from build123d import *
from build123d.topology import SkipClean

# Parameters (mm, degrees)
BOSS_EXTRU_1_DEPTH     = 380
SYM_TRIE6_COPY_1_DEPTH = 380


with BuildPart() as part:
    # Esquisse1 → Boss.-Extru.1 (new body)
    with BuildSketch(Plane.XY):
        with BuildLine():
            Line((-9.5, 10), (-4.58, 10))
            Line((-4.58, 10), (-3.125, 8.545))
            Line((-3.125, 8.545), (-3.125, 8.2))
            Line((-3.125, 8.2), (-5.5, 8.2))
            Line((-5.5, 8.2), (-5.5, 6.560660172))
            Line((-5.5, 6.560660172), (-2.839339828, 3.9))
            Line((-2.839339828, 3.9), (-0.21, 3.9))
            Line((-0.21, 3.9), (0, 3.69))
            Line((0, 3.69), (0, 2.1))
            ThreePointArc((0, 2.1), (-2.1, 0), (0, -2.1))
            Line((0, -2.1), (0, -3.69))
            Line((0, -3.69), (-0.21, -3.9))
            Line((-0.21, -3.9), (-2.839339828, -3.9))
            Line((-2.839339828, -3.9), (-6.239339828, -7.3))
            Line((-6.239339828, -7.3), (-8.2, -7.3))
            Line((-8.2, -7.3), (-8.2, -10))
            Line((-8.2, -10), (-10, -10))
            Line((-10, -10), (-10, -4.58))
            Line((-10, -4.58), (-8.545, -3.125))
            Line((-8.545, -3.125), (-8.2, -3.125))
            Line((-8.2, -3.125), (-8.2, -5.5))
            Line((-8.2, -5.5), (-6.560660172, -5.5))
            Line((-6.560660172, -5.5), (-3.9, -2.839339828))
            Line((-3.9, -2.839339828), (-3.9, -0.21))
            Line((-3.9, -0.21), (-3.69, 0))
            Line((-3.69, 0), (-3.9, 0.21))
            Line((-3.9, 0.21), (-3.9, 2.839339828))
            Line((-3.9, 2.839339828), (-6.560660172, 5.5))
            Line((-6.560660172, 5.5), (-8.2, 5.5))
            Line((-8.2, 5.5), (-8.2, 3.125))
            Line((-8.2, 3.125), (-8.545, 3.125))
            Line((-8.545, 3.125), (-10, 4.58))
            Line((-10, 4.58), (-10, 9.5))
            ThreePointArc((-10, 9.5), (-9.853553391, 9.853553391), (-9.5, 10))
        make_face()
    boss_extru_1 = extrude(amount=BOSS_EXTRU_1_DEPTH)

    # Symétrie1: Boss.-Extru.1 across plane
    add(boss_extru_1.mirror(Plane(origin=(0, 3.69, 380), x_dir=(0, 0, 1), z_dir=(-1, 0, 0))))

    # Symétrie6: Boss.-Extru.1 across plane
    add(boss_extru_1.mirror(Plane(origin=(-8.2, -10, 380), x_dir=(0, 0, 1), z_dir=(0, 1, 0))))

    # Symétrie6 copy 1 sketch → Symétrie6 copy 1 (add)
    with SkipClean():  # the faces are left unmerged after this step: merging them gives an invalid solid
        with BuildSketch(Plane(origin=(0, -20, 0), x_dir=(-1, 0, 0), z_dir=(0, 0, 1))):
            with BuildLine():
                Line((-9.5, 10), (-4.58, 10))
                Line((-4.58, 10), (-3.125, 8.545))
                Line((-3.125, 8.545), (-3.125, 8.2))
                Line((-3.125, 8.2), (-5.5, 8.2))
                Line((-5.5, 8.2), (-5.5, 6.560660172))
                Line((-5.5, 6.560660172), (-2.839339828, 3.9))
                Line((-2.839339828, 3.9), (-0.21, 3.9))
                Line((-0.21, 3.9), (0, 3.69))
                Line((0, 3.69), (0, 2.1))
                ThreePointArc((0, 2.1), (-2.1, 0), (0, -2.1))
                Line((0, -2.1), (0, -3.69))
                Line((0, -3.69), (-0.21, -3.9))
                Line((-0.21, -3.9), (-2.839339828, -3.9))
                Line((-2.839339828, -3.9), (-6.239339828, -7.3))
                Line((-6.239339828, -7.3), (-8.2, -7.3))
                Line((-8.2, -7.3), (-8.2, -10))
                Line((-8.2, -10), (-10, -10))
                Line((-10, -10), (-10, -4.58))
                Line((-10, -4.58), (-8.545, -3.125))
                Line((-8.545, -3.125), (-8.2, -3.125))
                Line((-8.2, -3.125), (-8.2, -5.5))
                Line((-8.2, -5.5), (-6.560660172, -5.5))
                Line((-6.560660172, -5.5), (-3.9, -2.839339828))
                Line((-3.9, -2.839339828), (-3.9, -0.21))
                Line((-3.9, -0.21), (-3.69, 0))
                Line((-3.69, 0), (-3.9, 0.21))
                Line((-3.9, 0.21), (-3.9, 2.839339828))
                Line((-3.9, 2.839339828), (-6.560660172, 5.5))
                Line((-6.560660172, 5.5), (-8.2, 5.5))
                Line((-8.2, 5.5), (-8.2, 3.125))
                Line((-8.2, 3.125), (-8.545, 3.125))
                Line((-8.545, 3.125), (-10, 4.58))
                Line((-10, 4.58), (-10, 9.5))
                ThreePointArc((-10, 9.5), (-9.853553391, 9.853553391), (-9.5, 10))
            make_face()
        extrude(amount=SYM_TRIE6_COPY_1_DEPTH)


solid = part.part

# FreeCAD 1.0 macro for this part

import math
import FreeCAD as App
import Part
import Sketcher

V = App.Vector

doc = App.newDocument("Part")
body = doc.addObject("PartDesign::Body", "Body")

# Sketch on XY plane
sketch1 = body.newObject("Sketcher::SketchObject", "Sketch")
sketch1.AttachmentSupport = (doc.getObject("XY_Plane"), [""])
sketch1.MapMode = "FlatFace"
sketch1.addGeometry([
    Part.LineSegment(V(-4.58, 10, 0), V(-9.5, 10, 0)),  # 0
    Part.ArcOfCircle(Part.Circle(V(-9.5, 9.5, 0), V(0, 0, 1), 0.5), math.radians(90), math.radians(180)),  # 1
    Part.LineSegment(V(-10, 9.5, 0), V(-10, 4.58, 0)),  # 2
    Part.LineSegment(V(-10, 4.58, 0), V(-8.54, 3.12, 0)),  # 3
    Part.LineSegment(V(-8.54, 3.12, 0), V(-8.2, 3.12, 0)),  # 4
    Part.LineSegment(V(-8.2, 3.12, 0), V(-8.2, 5.5, 0)),  # 5
    Part.LineSegment(V(-8.2, 5.5, 0), V(-6.56, 5.5, 0)),  # 6
    Part.LineSegment(V(-6.56, 5.5, 0), V(-3.9, 2.84, 0)),  # 7
    Part.LineSegment(V(-3.9, 2.84, 0), V(-3.9, 0.21, 0)),  # 8
    Part.LineSegment(V(-3.9, 0.21, 0), V(-3.69, 0, 0)),  # 9
    Part.LineSegment(V(-3.69, 0, 0), V(-3.9, -0.21, 0)),  # 10
    Part.LineSegment(V(-3.9, -0.21, 0), V(-3.9, -2.84, 0)),  # 11
    Part.LineSegment(V(-3.9, -2.84, 0), V(-6.56, -5.5, 0)),  # 12
    Part.LineSegment(V(-6.56, -5.5, 0), V(-8.2, -5.5, 0)),  # 13
    Part.LineSegment(V(-8.2, -5.5, 0), V(-8.2, -3.12, 0)),  # 14
    Part.LineSegment(V(-8.2, -3.12, 0), V(-8.54, -3.12, 0)),  # 15
    Part.LineSegment(V(-8.54, -3.12, 0), V(-10, -4.58, 0)),  # 16
    Part.LineSegment(V(-10, -4.58, 0), V(-10, -10, 0)),  # 17
    Part.LineSegment(V(-10, -10, 0), V(-8.2, -10, 0)),  # 18
    Part.LineSegment(V(-8.2, -10, 0), V(-8.2, -7.3, 0)),  # 19
    Part.LineSegment(V(-8.2, -7.3, 0), V(-6.24, -7.3, 0)),  # 20
    Part.LineSegment(V(-6.24, -7.3, 0), V(-2.84, -3.9, 0)),  # 21
    Part.LineSegment(V(-2.84, -3.9, 0), V(-0.21, -3.9, 0)),  # 22
    Part.LineSegment(V(-0.21, -3.9, 0), V(0, -3.69, 0)),  # 23
    Part.LineSegment(V(0, -3.69, 0), V(0, -2.1, 0)),  # 24
    Part.ArcOfCircle(Part.Circle(V(0, 0, 0), V(0, 0, 1), 2.1), math.radians(90), math.radians(270)),  # 25
    Part.LineSegment(V(0, 2.1, 0), V(0, 3.69, 0)),  # 26
    Part.LineSegment(V(0, 3.69, 0), V(-0.21, 3.9, 0)),  # 27
    Part.LineSegment(V(-0.21, 3.9, 0), V(-2.84, 3.9, 0)),  # 28
    Part.LineSegment(V(-2.84, 3.9, 0), V(-5.5, 6.56, 0)),  # 29
    Part.LineSegment(V(-5.5, 6.56, 0), V(-5.5, 8.2, 0)),  # 30
    Part.LineSegment(V(-5.5, 8.2, 0), V(-3.12, 8.2, 0)),  # 31
    Part.LineSegment(V(-3.12, 8.2, 0), V(-3.12, 8.54, 0)),  # 32
    Part.LineSegment(V(-3.12, 8.54, 0), V(-4.58, 10, 0)),  # 33
], False)
sketch1.addConstraint([
    Sketcher.Constraint("Tangent", 0, 2, 1, 1),
    Sketcher.Constraint("Tangent", 1, 2, 2, 1),
    Sketcher.Constraint("Coincident", 2, 2, 3, 1),
    Sketcher.Constraint("Coincident", 3, 2, 4, 1),
    Sketcher.Constraint("Coincident", 4, 2, 5, 1),
    Sketcher.Constraint("Coincident", 5, 2, 6, 1),
    Sketcher.Constraint("Coincident", 6, 2, 7, 1),
    Sketcher.Constraint("Coincident", 7, 2, 8, 1),
    Sketcher.Constraint("Coincident", 8, 2, 9, 1),
    Sketcher.Constraint("Coincident", 9, 2, 10, 1),
    Sketcher.Constraint("Coincident", 10, 2, 11, 1),
    Sketcher.Constraint("Coincident", 11, 2, 12, 1),
    Sketcher.Constraint("Coincident", 12, 2, 13, 1),
    Sketcher.Constraint("Coincident", 13, 2, 14, 1),
    Sketcher.Constraint("Coincident", 14, 2, 15, 1),
    Sketcher.Constraint("Coincident", 15, 2, 16, 1),
    Sketcher.Constraint("Coincident", 16, 2, 17, 1),
    Sketcher.Constraint("Coincident", 17, 2, 18, 1),
    Sketcher.Constraint("Coincident", 18, 2, 19, 1),
    Sketcher.Constraint("Coincident", 19, 2, 20, 1),
    Sketcher.Constraint("Coincident", 20, 2, 21, 1),
    Sketcher.Constraint("Coincident", 21, 2, 22, 1),
    Sketcher.Constraint("Coincident", 22, 2, 23, 1),
    Sketcher.Constraint("Coincident", 23, 2, 24, 1),
    Sketcher.Constraint("Coincident", 24, 2, 25, 2),
    Sketcher.Constraint("Coincident", 25, 1, 26, 1),
    Sketcher.Constraint("Coincident", 26, 2, 27, 1),
    Sketcher.Constraint("Coincident", 27, 2, 28, 1),
    Sketcher.Constraint("Coincident", 28, 2, 29, 1),
    Sketcher.Constraint("Coincident", 29, 2, 30, 1),
    Sketcher.Constraint("Coincident", 30, 2, 31, 1),
    Sketcher.Constraint("Coincident", 31, 2, 32, 1),
    Sketcher.Constraint("Coincident", 32, 2, 33, 1),
    Sketcher.Constraint("Coincident", 33, 2, 0, 1),
    Sketcher.Constraint("Horizontal", 0),
    Sketcher.Constraint("Vertical", 2),
    Sketcher.Constraint("Horizontal", 4),
    Sketcher.Constraint("Vertical", 5),
    Sketcher.Constraint("Horizontal", 6),
    Sketcher.Constraint("Vertical", 8),
    Sketcher.Constraint("Vertical", 11),
    Sketcher.Constraint("Horizontal", 13),
    Sketcher.Constraint("Vertical", 14),
    Sketcher.Constraint("Horizontal", 15),
    Sketcher.Constraint("Vertical", 17),
    Sketcher.Constraint("Horizontal", 18),
    Sketcher.Constraint("Vertical", 19),
    Sketcher.Constraint("Horizontal", 20),
    Sketcher.Constraint("Horizontal", 22),
    Sketcher.Constraint("Vertical", 24),
    Sketcher.Constraint("Vertical", 26),
    Sketcher.Constraint("Horizontal", 28),
    Sketcher.Constraint("Vertical", 30),
    Sketcher.Constraint("Horizontal", 31),
    Sketcher.Constraint("Vertical", 32),
    Sketcher.Constraint("Coincident", 25, 3, -1, 1),
    Sketcher.Constraint("Symmetric", 23, 2, 26, 2, -1, 1),
    Sketcher.Constraint("Symmetric", 8, 2, 10, 2, -1),
    Sketcher.Constraint("Symmetric", 6, 2, 12, 2, -1),
    Sketcher.Constraint("Symmetric", 4, 2, 14, 2, -1),
    Sketcher.Constraint("Symmetric", 2, 2, 16, 2, -1),
    Sketcher.Constraint("Symmetric", 22, 2, 27, 2, -1),
    Sketcher.Constraint("PointOnObject", 9, 2, -1),
    Sketcher.Constraint("PointOnObject", 23, 2, -2),
    Sketcher.Constraint("Parallel", 3, 7),
    Sketcher.Constraint("Parallel", 7, 9),
    Sketcher.Constraint("Perpendicular", 9, 10),
    Sketcher.Constraint("Parallel", 10, 12),
    Sketcher.Constraint("Parallel", 12, 16),
    Sketcher.Constraint("Parallel", 16, 21),
    Sketcher.Constraint("Parallel", 21, 23),
    Sketcher.Constraint("Parallel", 27, 29),
    Sketcher.Constraint("Parallel", 29, 33),
    Sketcher.Constraint("Vertical", 14, 2, 18, 2),
    Sketcher.Constraint("Vertical", 21, 2, 28, 2),
    Sketcher.Constraint("Equal", 0, 2),
    Sketcher.Constraint("Equal", 31, 5),
    Sketcher.Constraint("Equal", 28, 8),
    Sketcher.Constraint("Equal", 13, 30),
    Sketcher.Constraint("Equal", 15, 32),
    Sketcher.Constraint("Equal", 10, 23),
    Sketcher.Constraint("Equal", 12, 29),
    Sketcher.Constraint("Equal", 16, 33),
    Sketcher.Constraint("Radius", 1, 0.5),
    Sketcher.Constraint("Radius", 25, 2.1),
    Sketcher.Constraint("DistanceX", 18, 1, 18, 2, 1.8),
    Sketcher.Constraint("DistanceY", 19, 1, 19, 2, 2.7),
    Sketcher.Constraint("DistanceY", -1, 1, 0, 2, 10.0),
    Sketcher.Constraint("DistanceY", 17, 2, -1, 1, 10.0),
    Sketcher.Constraint("DistanceY", 5, 2, 1, 3, 4.0),
    Sketcher.Constraint("DistanceX", 0, 2, 0, 1, 4.92),
    Sketcher.Constraint("DistanceY", 24, 1, 24, 2, 1.59),
    Sketcher.Constraint("DistanceX", 7, 2, -1, 1, 3.9),
    Sketcher.Constraint("DistanceX", 4, 1, 4, 2, 0.345),
    Sketcher.Constraint("DistanceX", 6, 1, 6, 2, 1.63934),
])
pad1 = body.newObject("PartDesign::Pad", "Pad")
pad1.Profile = sketch1
pad1.Length = 380
doc.recompute()

mirrored = body.newObject("PartDesign::Mirrored", "Mirrored")
mirrored.Originals = [pad1]
mirrored.MirrorPlane = (doc.getObject("YZ_Plane"), [""])
body.Tip = mirrored
doc.recompute()

datumplane = body.newObject("PartDesign::Plane", "DatumPlane")
datumplane.AttachmentSupport = (doc.getObject("XZ_Plane"), [""])
datumplane.MapMode = "FlatFace"
datumplane.AttachmentOffset = App.Placement(V(0, 0, 10), App.Rotation())
mirrored2 = body.newObject("PartDesign::Mirrored", "Mirrored001")
mirrored2.Originals = [pad1]
mirrored2.MirrorPlane = (datumplane, [""])
body.Tip = mirrored2

# Sketch on XY plane
sketch2 = body.newObject("Sketcher::SketchObject", "Sketch001")
sketch2.AttachmentSupport = (doc.getObject("XY_Plane"), [""])
sketch2.MapMode = "FlatFace"
sketch2.addGeometry([
    Part.LineSegment(V(4.58, -30, 0), V(9.5, -30, 0)),  # 0
    Part.ArcOfCircle(Part.Circle(V(9.5, -29.5, 0), V(0, 0, 1), 0.5), math.radians(-90), math.radians(0)),  # 1
    Part.LineSegment(V(10, -29.5, 0), V(10, -24.58, 0)),  # 2
    Part.LineSegment(V(10, -24.58, 0), V(8.54, -23.12, 0)),  # 3
    Part.LineSegment(V(8.54, -23.12, 0), V(8.2, -23.12, 0)),  # 4
    Part.LineSegment(V(8.2, -23.12, 0), V(8.2, -25.5, 0)),  # 5
    Part.LineSegment(V(8.2, -25.5, 0), V(6.56, -25.5, 0)),  # 6
    Part.LineSegment(V(6.56, -25.5, 0), V(3.9, -22.84, 0)),  # 7
    Part.LineSegment(V(3.9, -22.84, 0), V(3.9, -20.21, 0)),  # 8
    Part.LineSegment(V(3.9, -20.21, 0), V(3.69, -20, 0)),  # 9
    Part.LineSegment(V(3.69, -20, 0), V(3.9, -19.79, 0)),  # 10
    Part.LineSegment(V(3.9, -19.79, 0), V(3.9, -17.16, 0)),  # 11
    Part.LineSegment(V(3.9, -17.16, 0), V(6.56, -14.5, 0)),  # 12
    Part.LineSegment(V(6.56, -14.5, 0), V(8.2, -14.5, 0)),  # 13
    Part.LineSegment(V(8.2, -14.5, 0), V(8.2, -16.88, 0)),  # 14
    Part.LineSegment(V(8.2, -16.88, 0), V(8.54, -16.88, 0)),  # 15
    Part.LineSegment(V(8.54, -16.88, 0), V(10, -15.42, 0)),  # 16
    Part.LineSegment(V(10, -15.42, 0), V(10, -10, 0)),  # 17
    Part.LineSegment(V(10, -10, 0), V(8.2, -10, 0)),  # 18
    Part.LineSegment(V(8.2, -10, 0), V(8.2, -12.7, 0)),  # 19
    Part.LineSegment(V(8.2, -12.7, 0), V(6.24, -12.7, 0)),  # 20
    Part.LineSegment(V(6.24, -12.7, 0), V(2.84, -16.1, 0)),  # 21
    Part.LineSegment(V(2.84, -16.1, 0), V(0.21, -16.1, 0)),  # 22
    Part.LineSegment(V(0.21, -16.1, 0), V(0, -16.31, 0)),  # 23
    Part.LineSegment(V(0, -16.31, 0), V(0, -17.9, 0)),  # 24
    Part.ArcOfCircle(Part.Circle(V(0, -20, 0), V(0, 0, 1), 2.1), math.radians(-90), math.radians(90)),  # 25
    Part.LineSegment(V(0, -22.1, 0), V(0, -23.69, 0)),  # 26
    Part.LineSegment(V(0, -23.69, 0), V(0.21, -23.9, 0)),  # 27
    Part.LineSegment(V(0.21, -23.9, 0), V(2.84, -23.9, 0)),  # 28
    Part.LineSegment(V(2.84, -23.9, 0), V(5.5, -26.56, 0)),  # 29
    Part.LineSegment(V(5.5, -26.56, 0), V(5.5, -28.2, 0)),  # 30
    Part.LineSegment(V(5.5, -28.2, 0), V(3.12, -28.2, 0)),  # 31
    Part.LineSegment(V(3.12, -28.2, 0), V(3.12, -28.55, 0)),  # 32
    Part.LineSegment(V(3.12, -28.55, 0), V(4.58, -30, 0)),  # 33
], False)
sketch2.addConstraint([
    Sketcher.Constraint("Tangent", 0, 2, 1, 1),
    Sketcher.Constraint("Tangent", 1, 2, 2, 1),
    Sketcher.Constraint("Coincident", 2, 2, 3, 1),
    Sketcher.Constraint("Coincident", 3, 2, 4, 1),
    Sketcher.Constraint("Coincident", 4, 2, 5, 1),
    Sketcher.Constraint("Coincident", 5, 2, 6, 1),
    Sketcher.Constraint("Coincident", 6, 2, 7, 1),
    Sketcher.Constraint("Coincident", 7, 2, 8, 1),
    Sketcher.Constraint("Coincident", 8, 2, 9, 1),
    Sketcher.Constraint("Coincident", 9, 2, 10, 1),
    Sketcher.Constraint("Coincident", 10, 2, 11, 1),
    Sketcher.Constraint("Coincident", 11, 2, 12, 1),
    Sketcher.Constraint("Coincident", 12, 2, 13, 1),
    Sketcher.Constraint("Coincident", 13, 2, 14, 1),
    Sketcher.Constraint("Coincident", 14, 2, 15, 1),
    Sketcher.Constraint("Coincident", 15, 2, 16, 1),
    Sketcher.Constraint("Coincident", 16, 2, 17, 1),
    Sketcher.Constraint("Coincident", 17, 2, 18, 1),
    Sketcher.Constraint("Coincident", 18, 2, 19, 1),
    Sketcher.Constraint("Coincident", 19, 2, 20, 1),
    Sketcher.Constraint("Coincident", 20, 2, 21, 1),
    Sketcher.Constraint("Coincident", 21, 2, 22, 1),
    Sketcher.Constraint("Coincident", 22, 2, 23, 1),
    Sketcher.Constraint("Coincident", 23, 2, 24, 1),
    Sketcher.Constraint("Coincident", 24, 2, 25, 2),
    Sketcher.Constraint("Coincident", 25, 1, 26, 1),
    Sketcher.Constraint("Coincident", 26, 2, 27, 1),
    Sketcher.Constraint("Coincident", 27, 2, 28, 1),
    Sketcher.Constraint("Coincident", 28, 2, 29, 1),
    Sketcher.Constraint("Coincident", 29, 2, 30, 1),
    Sketcher.Constraint("Coincident", 30, 2, 31, 1),
    Sketcher.Constraint("Coincident", 31, 2, 32, 1),
    Sketcher.Constraint("Coincident", 32, 2, 33, 1),
    Sketcher.Constraint("Coincident", 33, 2, 0, 1),
    Sketcher.Constraint("Horizontal", 0),
    Sketcher.Constraint("Vertical", 2),
    Sketcher.Constraint("Horizontal", 4),
    Sketcher.Constraint("Vertical", 5),
    Sketcher.Constraint("Horizontal", 6),
    Sketcher.Constraint("Vertical", 8),
    Sketcher.Constraint("Vertical", 11),
    Sketcher.Constraint("Horizontal", 13),
    Sketcher.Constraint("Vertical", 14),
    Sketcher.Constraint("Horizontal", 15),
    Sketcher.Constraint("Vertical", 17),
    Sketcher.Constraint("Horizontal", 18),
    Sketcher.Constraint("Vertical", 19),
    Sketcher.Constraint("Horizontal", 20),
    Sketcher.Constraint("Horizontal", 22),
    Sketcher.Constraint("Vertical", 24),
    Sketcher.Constraint("Vertical", 26),
    Sketcher.Constraint("Horizontal", 28),
    Sketcher.Constraint("Vertical", 30),
    Sketcher.Constraint("Horizontal", 31),
    Sketcher.Constraint("Vertical", 32),
    Sketcher.Constraint("PointOnObject", 25, 3, -2),
    Sketcher.Constraint("PointOnObject", 23, 2, -2),
    Sketcher.Constraint("PointOnObject", 25, 1, -2),
    Sketcher.Constraint("Parallel", 3, 7),
    Sketcher.Constraint("Parallel", 7, 9),
    Sketcher.Constraint("Perpendicular", 9, 10),
    Sketcher.Constraint("Parallel", 10, 12),
    Sketcher.Constraint("Parallel", 12, 16),
    Sketcher.Constraint("Parallel", 16, 21),
    Sketcher.Constraint("Parallel", 21, 23),
    Sketcher.Constraint("Perpendicular", 23, 27),
    Sketcher.Constraint("Parallel", 27, 29),
    Sketcher.Constraint("Parallel", 29, 33),
    Sketcher.Constraint("Horizontal", 25, 3, 9, 2),
    Sketcher.Constraint("Vertical", 8, 2, 10, 2),
    Sketcher.Constraint("Vertical", 6, 2, 12, 2),
    Sketcher.Constraint("Vertical", 5, 2, 13, 2),
    Sketcher.Constraint("Vertical", 3, 2, 15, 2),
    Sketcher.Constraint("Vertical", 2, 2, 16, 2),
    Sketcher.Constraint("Vertical", 14, 2, 18, 2),
    Sketcher.Constraint("Vertical", 22, 2, 27, 2),
    Sketcher.Constraint("Vertical", 21, 2, 28, 2),
    Sketcher.Constraint("Equal", 0, 2),
    Sketcher.Constraint("Equal", 31, 5),
    Sketcher.Constraint("Equal", 28, 8),
    Sketcher.Constraint("Equal", 8, 11),
    Sketcher.Constraint("Equal", 5, 14),
    Sketcher.Constraint("Equal", 24, 26),
    Sketcher.Constraint("Equal", 13, 30),
    Sketcher.Constraint("Equal", 15, 32),
    Sketcher.Constraint("Equal", 9, 10),
    Sketcher.Constraint("Equal", 10, 23),
    Sketcher.Constraint("Equal", 12, 29),
    Sketcher.Constraint("Equal", 16, 33),
    Sketcher.Constraint("Radius", 1, 0.5),
    Sketcher.Constraint("Radius", 25, 2.1),
    Sketcher.Constraint("DistanceX", 18, 2, 18, 1, 1.8),
    Sketcher.Constraint("DistanceY", 19, 2, 19, 1, 2.7),
    Sketcher.Constraint("DistanceY", 25, 3, -1, 1, 20.0),
    Sketcher.Constraint("DistanceY", 0, 2, -1, 1, 30.0),
    Sketcher.Constraint("DistanceY", 17, 2, -1, 1, 10.0),
    Sketcher.Constraint("DistanceY", 1, 3, 5, 2, 4.0),
    Sketcher.Constraint("DistanceX", 0, 1, 0, 2, 4.92),
    Sketcher.Constraint("DistanceY", 24, 2, 24, 1, 1.59),
    Sketcher.Constraint("DistanceX", -1, 1, 7, 2, 3.9),
    Sketcher.Constraint("DistanceX", 4, 2, 4, 1, 0.345),
    Sketcher.Constraint("DistanceX", 6, 2, 6, 1, 1.63934),
])
pad2 = body.newObject("PartDesign::Pad", "Pad001")
pad2.Profile = sketch2
pad2.Length = 380

doc.recompute()
